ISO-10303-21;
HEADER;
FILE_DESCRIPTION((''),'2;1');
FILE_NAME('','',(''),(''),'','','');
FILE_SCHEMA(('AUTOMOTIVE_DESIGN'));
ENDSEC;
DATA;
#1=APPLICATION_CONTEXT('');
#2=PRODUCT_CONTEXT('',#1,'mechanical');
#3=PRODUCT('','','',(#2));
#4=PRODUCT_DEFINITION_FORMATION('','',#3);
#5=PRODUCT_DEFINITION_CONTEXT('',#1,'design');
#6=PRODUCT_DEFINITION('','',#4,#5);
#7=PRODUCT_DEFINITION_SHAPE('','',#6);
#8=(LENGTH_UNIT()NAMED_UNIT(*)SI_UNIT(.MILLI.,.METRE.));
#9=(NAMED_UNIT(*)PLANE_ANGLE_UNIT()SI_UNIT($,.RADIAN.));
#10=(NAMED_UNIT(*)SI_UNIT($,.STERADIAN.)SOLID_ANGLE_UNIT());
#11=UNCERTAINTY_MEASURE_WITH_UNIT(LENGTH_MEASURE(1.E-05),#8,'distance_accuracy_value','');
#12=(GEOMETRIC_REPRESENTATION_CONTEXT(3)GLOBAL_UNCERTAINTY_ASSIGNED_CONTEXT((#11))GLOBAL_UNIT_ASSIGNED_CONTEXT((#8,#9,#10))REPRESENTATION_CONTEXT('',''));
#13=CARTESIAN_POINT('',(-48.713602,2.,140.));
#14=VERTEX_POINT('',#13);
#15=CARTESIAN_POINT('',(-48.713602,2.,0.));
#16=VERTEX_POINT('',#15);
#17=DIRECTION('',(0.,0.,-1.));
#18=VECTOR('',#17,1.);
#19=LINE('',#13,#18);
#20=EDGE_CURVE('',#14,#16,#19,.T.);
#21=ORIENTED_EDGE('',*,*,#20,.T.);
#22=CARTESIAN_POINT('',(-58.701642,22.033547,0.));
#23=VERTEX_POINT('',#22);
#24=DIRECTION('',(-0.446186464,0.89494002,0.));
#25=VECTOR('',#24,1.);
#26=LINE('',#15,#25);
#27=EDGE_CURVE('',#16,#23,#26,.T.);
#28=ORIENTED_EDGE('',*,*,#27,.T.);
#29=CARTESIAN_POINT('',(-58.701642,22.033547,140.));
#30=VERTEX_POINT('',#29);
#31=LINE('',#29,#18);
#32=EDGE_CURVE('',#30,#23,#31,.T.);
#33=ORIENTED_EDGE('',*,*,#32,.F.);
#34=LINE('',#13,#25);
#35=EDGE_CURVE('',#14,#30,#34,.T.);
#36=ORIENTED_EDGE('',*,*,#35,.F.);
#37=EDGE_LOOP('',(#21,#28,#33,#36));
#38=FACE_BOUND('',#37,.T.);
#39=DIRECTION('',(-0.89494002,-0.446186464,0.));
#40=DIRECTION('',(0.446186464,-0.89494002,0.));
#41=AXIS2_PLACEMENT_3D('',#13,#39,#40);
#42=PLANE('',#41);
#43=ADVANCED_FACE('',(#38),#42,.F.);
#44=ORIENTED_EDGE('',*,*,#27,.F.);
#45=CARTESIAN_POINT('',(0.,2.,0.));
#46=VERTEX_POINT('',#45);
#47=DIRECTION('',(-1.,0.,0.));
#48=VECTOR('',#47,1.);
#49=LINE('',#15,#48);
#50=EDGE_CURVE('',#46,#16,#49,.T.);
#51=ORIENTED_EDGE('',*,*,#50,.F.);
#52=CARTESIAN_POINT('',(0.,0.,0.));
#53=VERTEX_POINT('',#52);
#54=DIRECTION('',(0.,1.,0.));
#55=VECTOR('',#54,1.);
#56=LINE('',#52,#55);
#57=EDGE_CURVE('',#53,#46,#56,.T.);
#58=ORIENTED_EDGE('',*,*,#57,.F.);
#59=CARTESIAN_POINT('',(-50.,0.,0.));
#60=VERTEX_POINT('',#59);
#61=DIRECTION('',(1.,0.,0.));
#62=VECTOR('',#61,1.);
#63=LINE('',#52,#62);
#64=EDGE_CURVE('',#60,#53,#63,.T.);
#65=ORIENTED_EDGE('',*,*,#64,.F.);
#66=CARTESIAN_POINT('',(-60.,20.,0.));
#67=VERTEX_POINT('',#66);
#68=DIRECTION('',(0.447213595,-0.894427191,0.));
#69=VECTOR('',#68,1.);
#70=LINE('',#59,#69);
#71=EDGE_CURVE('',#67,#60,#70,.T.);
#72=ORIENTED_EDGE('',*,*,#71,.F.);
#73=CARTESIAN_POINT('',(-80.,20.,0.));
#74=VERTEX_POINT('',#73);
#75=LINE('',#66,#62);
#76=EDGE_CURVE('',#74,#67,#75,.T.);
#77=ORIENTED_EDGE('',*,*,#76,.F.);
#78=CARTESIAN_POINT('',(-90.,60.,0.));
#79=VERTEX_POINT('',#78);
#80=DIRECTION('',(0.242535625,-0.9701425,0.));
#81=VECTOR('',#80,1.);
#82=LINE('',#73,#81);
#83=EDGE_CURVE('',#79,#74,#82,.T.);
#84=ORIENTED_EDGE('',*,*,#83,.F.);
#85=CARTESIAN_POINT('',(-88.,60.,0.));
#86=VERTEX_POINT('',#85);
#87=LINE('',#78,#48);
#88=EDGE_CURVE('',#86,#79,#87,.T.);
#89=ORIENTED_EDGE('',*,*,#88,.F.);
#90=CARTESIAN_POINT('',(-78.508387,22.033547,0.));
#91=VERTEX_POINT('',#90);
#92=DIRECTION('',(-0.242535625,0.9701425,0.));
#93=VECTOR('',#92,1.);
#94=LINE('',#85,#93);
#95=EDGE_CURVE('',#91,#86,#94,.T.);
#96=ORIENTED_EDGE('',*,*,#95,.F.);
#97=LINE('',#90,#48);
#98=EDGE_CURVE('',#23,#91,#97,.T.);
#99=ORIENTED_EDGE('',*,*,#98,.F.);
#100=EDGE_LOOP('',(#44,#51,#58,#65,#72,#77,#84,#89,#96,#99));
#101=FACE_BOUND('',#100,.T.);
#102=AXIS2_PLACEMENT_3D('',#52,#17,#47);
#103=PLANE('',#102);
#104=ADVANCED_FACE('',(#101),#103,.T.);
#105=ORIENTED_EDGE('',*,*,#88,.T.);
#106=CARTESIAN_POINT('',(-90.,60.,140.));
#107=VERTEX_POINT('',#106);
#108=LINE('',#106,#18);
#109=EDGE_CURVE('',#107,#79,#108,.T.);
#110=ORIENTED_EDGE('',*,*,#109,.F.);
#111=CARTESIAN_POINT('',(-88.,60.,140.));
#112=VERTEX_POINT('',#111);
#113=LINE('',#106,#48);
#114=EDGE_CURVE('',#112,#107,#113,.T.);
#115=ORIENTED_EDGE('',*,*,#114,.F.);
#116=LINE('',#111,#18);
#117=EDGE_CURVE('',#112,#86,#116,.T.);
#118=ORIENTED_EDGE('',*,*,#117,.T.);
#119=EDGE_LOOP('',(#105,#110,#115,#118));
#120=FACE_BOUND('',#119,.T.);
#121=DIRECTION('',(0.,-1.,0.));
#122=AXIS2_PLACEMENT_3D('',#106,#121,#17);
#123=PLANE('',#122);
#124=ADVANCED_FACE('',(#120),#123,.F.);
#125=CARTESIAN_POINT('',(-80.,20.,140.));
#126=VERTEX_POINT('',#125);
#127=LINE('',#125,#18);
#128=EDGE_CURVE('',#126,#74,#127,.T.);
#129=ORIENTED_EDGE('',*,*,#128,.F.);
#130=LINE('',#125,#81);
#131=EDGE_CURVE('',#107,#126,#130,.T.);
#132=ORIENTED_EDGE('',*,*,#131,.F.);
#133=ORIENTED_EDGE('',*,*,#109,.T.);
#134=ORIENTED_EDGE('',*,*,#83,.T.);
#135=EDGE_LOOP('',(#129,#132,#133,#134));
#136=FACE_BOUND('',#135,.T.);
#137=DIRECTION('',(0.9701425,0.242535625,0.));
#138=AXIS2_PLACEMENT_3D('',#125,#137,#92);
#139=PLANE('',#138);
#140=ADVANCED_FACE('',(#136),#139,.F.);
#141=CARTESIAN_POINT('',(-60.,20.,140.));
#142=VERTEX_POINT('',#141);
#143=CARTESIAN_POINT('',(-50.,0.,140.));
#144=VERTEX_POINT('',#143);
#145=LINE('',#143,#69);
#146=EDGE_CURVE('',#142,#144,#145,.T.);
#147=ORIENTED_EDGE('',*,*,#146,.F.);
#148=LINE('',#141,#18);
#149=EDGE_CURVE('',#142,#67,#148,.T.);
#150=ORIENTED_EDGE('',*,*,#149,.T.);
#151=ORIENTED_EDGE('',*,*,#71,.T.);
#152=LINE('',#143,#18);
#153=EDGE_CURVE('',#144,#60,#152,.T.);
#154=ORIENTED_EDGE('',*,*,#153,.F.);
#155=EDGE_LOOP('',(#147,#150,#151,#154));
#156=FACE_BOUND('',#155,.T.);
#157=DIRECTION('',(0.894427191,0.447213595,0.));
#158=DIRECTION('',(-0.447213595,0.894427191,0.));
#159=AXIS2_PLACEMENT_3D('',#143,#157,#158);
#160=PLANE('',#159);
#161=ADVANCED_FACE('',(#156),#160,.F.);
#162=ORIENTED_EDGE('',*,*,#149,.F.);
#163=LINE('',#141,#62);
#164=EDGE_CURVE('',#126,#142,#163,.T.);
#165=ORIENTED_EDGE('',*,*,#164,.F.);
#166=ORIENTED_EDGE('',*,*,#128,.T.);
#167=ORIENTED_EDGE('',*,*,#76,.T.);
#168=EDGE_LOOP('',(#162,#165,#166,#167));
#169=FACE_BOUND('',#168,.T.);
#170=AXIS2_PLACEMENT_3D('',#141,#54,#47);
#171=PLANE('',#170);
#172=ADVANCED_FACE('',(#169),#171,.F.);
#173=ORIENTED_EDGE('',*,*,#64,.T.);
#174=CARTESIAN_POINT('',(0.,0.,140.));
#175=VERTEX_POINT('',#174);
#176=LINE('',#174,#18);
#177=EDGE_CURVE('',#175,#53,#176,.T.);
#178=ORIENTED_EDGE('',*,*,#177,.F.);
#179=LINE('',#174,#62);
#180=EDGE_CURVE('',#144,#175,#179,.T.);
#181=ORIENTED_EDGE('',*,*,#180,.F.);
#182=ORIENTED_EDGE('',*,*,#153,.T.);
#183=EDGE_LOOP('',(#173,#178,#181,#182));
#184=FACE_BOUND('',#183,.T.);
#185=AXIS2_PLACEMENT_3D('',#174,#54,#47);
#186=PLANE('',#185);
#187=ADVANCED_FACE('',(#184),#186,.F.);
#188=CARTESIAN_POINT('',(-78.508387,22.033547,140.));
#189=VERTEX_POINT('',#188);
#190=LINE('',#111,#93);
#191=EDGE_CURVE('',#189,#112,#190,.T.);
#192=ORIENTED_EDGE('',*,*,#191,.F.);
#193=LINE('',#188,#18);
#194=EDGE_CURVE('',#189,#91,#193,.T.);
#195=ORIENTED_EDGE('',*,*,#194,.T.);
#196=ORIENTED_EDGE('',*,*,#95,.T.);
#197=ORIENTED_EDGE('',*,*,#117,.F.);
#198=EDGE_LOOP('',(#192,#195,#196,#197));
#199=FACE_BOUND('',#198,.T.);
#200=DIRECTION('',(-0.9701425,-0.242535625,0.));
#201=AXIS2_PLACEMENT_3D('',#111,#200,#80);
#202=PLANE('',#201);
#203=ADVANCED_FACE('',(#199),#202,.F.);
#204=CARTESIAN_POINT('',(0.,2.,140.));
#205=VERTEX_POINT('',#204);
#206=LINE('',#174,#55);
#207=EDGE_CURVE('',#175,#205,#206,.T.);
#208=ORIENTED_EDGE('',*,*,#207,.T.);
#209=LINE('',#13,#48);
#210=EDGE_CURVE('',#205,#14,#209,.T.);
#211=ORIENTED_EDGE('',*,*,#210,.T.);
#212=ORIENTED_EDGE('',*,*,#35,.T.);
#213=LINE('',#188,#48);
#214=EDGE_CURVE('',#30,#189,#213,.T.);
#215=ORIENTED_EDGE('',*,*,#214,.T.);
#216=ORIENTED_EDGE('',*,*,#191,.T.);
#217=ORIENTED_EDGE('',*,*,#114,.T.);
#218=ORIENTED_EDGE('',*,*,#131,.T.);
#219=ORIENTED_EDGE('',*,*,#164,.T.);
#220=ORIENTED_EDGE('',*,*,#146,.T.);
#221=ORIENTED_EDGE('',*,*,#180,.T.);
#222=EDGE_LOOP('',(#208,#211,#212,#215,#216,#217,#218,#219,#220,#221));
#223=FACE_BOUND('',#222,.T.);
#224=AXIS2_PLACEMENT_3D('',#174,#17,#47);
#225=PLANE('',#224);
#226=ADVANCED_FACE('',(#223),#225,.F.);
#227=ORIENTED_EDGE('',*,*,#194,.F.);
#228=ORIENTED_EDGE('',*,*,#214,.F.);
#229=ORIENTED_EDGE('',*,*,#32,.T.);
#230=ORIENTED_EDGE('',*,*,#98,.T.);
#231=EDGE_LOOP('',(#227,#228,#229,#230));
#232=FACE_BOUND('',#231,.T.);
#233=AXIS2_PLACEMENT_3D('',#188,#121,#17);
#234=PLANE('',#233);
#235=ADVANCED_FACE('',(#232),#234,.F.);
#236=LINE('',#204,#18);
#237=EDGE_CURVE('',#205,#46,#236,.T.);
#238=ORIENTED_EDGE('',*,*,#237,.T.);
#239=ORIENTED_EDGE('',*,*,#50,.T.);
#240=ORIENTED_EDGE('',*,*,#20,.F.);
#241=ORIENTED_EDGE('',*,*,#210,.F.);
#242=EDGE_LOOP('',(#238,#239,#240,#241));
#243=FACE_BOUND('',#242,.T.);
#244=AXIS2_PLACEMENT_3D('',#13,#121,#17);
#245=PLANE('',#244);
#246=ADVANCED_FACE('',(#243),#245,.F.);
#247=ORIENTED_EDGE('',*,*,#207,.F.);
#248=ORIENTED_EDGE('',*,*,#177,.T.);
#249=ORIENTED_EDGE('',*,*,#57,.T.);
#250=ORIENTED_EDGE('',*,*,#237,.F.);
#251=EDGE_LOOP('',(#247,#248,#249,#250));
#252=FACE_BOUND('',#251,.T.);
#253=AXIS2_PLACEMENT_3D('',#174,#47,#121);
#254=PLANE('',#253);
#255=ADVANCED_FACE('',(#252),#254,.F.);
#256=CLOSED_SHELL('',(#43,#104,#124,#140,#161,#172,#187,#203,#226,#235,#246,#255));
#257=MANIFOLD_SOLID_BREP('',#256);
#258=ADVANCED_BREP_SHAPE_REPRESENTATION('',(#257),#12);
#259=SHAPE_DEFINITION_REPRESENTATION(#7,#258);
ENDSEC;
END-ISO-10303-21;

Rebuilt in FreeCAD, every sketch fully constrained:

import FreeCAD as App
import Part
import Sketcher

V = App.Vector

doc = App.newDocument("Part")
body = doc.addObject("PartDesign::Body", "Body")

# Sketch on XY plane
sketch1 = body.newObject("Sketcher::SketchObject", "Sketch")
sketch1.AttachmentSupport = (doc.getObject("XY_Plane"), [""])
sketch1.MapMode = "FlatFace"
sketch1.addGeometry(Part.LineSegment(V(-50, 0, 0), V(0, 0, 0)), False)
sketch1.addGeometry(Part.LineSegment(V(0, 0, 0), V(0, 2, 0)), False)
sketch1.addGeometry(Part.LineSegment(V(0, 2, 0), V(-48.7, 2, 0)), False)
sketch1.addGeometry(Part.LineSegment(V(-48.7, 2, 0), V(-58.7, 22, 0)), False)
sketch1.addGeometry(Part.LineSegment(V(-58.7, 22, 0), V(-78.5, 22, 0)), False)
sketch1.addGeometry(Part.LineSegment(V(-78.5, 22, 0), V(-88, 60, 0)), False)
sketch1.addGeometry(Part.LineSegment(V(-88, 60, 0), V(-90, 60, 0)), False)
sketch1.addGeometry(Part.LineSegment(V(-90, 60, 0), V(-80, 20, 0)), False)
sketch1.addGeometry(Part.LineSegment(V(-80, 20, 0), V(-60, 20, 0)), False)
sketch1.addGeometry(Part.LineSegment(V(-60, 20, 0), V(-50, 0, 0)), False)
sketch1.addConstraint(Sketcher.Constraint("Coincident", 0, 2, 1, 1))
sketch1.addConstraint(Sketcher.Constraint("Coincident", 1, 2, 2, 1))
sketch1.addConstraint(Sketcher.Constraint("Coincident", 2, 2, 3, 1))
sketch1.addConstraint(Sketcher.Constraint("Coincident", 3, 2, 4, 1))
sketch1.addConstraint(Sketcher.Constraint("Coincident", 4, 2, 5, 1))
sketch1.addConstraint(Sketcher.Constraint("Coincident", 5, 2, 6, 1))
sketch1.addConstraint(Sketcher.Constraint("Coincident", 6, 2, 7, 1))
sketch1.addConstraint(Sketcher.Constraint("Coincident", 7, 2, 8, 1))
sketch1.addConstraint(Sketcher.Constraint("Coincident", 8, 2, 9, 1))
sketch1.addConstraint(Sketcher.Constraint("Coincident", 9, 2, 0, 1))
sketch1.addConstraint(Sketcher.Constraint("Horizontal", 0))
sketch1.addConstraint(Sketcher.Constraint("Vertical", 1))
sketch1.addConstraint(Sketcher.Constraint("Horizontal", 2))
sketch1.addConstraint(Sketcher.Constraint("Horizontal", 4))
sketch1.addConstraint(Sketcher.Constraint("Horizontal", 6))
sketch1.addConstraint(Sketcher.Constraint("Horizontal", 8))
sketch1.addConstraint(Sketcher.Constraint("Coincident", 0, 2, -1, 1))
sketch1.addConstraint(Sketcher.Constraint("Parallel", 5, 7))
sketch1.addConstraint(Sketcher.Constraint("Equal", 6, 1))
sketch1.addConstraint(Sketcher.Constraint("DistanceX", 0, 1, 0, 2, 50.0))
sketch1.addConstraint(Sketcher.Constraint("DistanceX", 6, 2, 6, 1, 2.0))
sketch1.addConstraint(Sketcher.Constraint("DistanceX", 8, 1, 8, 2, 20.0))
sketch1.addConstraint(Sketcher.Constraint("DistanceX", 5, 2, -1, 1, 88.0))
sketch1.addConstraint(Sketcher.Constraint("DistanceY", -1, 1, 5, 2, 60.0))
sketch1.addConstraint(Sketcher.Constraint("DistanceX", 7, 2, -1, 1, 80.0))
sketch1.addConstraint(Sketcher.Constraint("DistanceY", -1, 1, 7, 2, 20.0))
sketch1.addConstraint(Sketcher.Constraint("DistanceX", 2, 2, 2, 1, 48.713602))
sketch1.addConstraint(Sketcher.Constraint("Distance", 3, 22.385351))
sketch1.addConstraint(Sketcher.Constraint("DistanceX", 4, 2, 4, 1, 19.806744))
pad1 = body.newObject("PartDesign::Pad", "Pad")
pad1.Profile = sketch1
pad1.Length = 140

doc.recompute()
